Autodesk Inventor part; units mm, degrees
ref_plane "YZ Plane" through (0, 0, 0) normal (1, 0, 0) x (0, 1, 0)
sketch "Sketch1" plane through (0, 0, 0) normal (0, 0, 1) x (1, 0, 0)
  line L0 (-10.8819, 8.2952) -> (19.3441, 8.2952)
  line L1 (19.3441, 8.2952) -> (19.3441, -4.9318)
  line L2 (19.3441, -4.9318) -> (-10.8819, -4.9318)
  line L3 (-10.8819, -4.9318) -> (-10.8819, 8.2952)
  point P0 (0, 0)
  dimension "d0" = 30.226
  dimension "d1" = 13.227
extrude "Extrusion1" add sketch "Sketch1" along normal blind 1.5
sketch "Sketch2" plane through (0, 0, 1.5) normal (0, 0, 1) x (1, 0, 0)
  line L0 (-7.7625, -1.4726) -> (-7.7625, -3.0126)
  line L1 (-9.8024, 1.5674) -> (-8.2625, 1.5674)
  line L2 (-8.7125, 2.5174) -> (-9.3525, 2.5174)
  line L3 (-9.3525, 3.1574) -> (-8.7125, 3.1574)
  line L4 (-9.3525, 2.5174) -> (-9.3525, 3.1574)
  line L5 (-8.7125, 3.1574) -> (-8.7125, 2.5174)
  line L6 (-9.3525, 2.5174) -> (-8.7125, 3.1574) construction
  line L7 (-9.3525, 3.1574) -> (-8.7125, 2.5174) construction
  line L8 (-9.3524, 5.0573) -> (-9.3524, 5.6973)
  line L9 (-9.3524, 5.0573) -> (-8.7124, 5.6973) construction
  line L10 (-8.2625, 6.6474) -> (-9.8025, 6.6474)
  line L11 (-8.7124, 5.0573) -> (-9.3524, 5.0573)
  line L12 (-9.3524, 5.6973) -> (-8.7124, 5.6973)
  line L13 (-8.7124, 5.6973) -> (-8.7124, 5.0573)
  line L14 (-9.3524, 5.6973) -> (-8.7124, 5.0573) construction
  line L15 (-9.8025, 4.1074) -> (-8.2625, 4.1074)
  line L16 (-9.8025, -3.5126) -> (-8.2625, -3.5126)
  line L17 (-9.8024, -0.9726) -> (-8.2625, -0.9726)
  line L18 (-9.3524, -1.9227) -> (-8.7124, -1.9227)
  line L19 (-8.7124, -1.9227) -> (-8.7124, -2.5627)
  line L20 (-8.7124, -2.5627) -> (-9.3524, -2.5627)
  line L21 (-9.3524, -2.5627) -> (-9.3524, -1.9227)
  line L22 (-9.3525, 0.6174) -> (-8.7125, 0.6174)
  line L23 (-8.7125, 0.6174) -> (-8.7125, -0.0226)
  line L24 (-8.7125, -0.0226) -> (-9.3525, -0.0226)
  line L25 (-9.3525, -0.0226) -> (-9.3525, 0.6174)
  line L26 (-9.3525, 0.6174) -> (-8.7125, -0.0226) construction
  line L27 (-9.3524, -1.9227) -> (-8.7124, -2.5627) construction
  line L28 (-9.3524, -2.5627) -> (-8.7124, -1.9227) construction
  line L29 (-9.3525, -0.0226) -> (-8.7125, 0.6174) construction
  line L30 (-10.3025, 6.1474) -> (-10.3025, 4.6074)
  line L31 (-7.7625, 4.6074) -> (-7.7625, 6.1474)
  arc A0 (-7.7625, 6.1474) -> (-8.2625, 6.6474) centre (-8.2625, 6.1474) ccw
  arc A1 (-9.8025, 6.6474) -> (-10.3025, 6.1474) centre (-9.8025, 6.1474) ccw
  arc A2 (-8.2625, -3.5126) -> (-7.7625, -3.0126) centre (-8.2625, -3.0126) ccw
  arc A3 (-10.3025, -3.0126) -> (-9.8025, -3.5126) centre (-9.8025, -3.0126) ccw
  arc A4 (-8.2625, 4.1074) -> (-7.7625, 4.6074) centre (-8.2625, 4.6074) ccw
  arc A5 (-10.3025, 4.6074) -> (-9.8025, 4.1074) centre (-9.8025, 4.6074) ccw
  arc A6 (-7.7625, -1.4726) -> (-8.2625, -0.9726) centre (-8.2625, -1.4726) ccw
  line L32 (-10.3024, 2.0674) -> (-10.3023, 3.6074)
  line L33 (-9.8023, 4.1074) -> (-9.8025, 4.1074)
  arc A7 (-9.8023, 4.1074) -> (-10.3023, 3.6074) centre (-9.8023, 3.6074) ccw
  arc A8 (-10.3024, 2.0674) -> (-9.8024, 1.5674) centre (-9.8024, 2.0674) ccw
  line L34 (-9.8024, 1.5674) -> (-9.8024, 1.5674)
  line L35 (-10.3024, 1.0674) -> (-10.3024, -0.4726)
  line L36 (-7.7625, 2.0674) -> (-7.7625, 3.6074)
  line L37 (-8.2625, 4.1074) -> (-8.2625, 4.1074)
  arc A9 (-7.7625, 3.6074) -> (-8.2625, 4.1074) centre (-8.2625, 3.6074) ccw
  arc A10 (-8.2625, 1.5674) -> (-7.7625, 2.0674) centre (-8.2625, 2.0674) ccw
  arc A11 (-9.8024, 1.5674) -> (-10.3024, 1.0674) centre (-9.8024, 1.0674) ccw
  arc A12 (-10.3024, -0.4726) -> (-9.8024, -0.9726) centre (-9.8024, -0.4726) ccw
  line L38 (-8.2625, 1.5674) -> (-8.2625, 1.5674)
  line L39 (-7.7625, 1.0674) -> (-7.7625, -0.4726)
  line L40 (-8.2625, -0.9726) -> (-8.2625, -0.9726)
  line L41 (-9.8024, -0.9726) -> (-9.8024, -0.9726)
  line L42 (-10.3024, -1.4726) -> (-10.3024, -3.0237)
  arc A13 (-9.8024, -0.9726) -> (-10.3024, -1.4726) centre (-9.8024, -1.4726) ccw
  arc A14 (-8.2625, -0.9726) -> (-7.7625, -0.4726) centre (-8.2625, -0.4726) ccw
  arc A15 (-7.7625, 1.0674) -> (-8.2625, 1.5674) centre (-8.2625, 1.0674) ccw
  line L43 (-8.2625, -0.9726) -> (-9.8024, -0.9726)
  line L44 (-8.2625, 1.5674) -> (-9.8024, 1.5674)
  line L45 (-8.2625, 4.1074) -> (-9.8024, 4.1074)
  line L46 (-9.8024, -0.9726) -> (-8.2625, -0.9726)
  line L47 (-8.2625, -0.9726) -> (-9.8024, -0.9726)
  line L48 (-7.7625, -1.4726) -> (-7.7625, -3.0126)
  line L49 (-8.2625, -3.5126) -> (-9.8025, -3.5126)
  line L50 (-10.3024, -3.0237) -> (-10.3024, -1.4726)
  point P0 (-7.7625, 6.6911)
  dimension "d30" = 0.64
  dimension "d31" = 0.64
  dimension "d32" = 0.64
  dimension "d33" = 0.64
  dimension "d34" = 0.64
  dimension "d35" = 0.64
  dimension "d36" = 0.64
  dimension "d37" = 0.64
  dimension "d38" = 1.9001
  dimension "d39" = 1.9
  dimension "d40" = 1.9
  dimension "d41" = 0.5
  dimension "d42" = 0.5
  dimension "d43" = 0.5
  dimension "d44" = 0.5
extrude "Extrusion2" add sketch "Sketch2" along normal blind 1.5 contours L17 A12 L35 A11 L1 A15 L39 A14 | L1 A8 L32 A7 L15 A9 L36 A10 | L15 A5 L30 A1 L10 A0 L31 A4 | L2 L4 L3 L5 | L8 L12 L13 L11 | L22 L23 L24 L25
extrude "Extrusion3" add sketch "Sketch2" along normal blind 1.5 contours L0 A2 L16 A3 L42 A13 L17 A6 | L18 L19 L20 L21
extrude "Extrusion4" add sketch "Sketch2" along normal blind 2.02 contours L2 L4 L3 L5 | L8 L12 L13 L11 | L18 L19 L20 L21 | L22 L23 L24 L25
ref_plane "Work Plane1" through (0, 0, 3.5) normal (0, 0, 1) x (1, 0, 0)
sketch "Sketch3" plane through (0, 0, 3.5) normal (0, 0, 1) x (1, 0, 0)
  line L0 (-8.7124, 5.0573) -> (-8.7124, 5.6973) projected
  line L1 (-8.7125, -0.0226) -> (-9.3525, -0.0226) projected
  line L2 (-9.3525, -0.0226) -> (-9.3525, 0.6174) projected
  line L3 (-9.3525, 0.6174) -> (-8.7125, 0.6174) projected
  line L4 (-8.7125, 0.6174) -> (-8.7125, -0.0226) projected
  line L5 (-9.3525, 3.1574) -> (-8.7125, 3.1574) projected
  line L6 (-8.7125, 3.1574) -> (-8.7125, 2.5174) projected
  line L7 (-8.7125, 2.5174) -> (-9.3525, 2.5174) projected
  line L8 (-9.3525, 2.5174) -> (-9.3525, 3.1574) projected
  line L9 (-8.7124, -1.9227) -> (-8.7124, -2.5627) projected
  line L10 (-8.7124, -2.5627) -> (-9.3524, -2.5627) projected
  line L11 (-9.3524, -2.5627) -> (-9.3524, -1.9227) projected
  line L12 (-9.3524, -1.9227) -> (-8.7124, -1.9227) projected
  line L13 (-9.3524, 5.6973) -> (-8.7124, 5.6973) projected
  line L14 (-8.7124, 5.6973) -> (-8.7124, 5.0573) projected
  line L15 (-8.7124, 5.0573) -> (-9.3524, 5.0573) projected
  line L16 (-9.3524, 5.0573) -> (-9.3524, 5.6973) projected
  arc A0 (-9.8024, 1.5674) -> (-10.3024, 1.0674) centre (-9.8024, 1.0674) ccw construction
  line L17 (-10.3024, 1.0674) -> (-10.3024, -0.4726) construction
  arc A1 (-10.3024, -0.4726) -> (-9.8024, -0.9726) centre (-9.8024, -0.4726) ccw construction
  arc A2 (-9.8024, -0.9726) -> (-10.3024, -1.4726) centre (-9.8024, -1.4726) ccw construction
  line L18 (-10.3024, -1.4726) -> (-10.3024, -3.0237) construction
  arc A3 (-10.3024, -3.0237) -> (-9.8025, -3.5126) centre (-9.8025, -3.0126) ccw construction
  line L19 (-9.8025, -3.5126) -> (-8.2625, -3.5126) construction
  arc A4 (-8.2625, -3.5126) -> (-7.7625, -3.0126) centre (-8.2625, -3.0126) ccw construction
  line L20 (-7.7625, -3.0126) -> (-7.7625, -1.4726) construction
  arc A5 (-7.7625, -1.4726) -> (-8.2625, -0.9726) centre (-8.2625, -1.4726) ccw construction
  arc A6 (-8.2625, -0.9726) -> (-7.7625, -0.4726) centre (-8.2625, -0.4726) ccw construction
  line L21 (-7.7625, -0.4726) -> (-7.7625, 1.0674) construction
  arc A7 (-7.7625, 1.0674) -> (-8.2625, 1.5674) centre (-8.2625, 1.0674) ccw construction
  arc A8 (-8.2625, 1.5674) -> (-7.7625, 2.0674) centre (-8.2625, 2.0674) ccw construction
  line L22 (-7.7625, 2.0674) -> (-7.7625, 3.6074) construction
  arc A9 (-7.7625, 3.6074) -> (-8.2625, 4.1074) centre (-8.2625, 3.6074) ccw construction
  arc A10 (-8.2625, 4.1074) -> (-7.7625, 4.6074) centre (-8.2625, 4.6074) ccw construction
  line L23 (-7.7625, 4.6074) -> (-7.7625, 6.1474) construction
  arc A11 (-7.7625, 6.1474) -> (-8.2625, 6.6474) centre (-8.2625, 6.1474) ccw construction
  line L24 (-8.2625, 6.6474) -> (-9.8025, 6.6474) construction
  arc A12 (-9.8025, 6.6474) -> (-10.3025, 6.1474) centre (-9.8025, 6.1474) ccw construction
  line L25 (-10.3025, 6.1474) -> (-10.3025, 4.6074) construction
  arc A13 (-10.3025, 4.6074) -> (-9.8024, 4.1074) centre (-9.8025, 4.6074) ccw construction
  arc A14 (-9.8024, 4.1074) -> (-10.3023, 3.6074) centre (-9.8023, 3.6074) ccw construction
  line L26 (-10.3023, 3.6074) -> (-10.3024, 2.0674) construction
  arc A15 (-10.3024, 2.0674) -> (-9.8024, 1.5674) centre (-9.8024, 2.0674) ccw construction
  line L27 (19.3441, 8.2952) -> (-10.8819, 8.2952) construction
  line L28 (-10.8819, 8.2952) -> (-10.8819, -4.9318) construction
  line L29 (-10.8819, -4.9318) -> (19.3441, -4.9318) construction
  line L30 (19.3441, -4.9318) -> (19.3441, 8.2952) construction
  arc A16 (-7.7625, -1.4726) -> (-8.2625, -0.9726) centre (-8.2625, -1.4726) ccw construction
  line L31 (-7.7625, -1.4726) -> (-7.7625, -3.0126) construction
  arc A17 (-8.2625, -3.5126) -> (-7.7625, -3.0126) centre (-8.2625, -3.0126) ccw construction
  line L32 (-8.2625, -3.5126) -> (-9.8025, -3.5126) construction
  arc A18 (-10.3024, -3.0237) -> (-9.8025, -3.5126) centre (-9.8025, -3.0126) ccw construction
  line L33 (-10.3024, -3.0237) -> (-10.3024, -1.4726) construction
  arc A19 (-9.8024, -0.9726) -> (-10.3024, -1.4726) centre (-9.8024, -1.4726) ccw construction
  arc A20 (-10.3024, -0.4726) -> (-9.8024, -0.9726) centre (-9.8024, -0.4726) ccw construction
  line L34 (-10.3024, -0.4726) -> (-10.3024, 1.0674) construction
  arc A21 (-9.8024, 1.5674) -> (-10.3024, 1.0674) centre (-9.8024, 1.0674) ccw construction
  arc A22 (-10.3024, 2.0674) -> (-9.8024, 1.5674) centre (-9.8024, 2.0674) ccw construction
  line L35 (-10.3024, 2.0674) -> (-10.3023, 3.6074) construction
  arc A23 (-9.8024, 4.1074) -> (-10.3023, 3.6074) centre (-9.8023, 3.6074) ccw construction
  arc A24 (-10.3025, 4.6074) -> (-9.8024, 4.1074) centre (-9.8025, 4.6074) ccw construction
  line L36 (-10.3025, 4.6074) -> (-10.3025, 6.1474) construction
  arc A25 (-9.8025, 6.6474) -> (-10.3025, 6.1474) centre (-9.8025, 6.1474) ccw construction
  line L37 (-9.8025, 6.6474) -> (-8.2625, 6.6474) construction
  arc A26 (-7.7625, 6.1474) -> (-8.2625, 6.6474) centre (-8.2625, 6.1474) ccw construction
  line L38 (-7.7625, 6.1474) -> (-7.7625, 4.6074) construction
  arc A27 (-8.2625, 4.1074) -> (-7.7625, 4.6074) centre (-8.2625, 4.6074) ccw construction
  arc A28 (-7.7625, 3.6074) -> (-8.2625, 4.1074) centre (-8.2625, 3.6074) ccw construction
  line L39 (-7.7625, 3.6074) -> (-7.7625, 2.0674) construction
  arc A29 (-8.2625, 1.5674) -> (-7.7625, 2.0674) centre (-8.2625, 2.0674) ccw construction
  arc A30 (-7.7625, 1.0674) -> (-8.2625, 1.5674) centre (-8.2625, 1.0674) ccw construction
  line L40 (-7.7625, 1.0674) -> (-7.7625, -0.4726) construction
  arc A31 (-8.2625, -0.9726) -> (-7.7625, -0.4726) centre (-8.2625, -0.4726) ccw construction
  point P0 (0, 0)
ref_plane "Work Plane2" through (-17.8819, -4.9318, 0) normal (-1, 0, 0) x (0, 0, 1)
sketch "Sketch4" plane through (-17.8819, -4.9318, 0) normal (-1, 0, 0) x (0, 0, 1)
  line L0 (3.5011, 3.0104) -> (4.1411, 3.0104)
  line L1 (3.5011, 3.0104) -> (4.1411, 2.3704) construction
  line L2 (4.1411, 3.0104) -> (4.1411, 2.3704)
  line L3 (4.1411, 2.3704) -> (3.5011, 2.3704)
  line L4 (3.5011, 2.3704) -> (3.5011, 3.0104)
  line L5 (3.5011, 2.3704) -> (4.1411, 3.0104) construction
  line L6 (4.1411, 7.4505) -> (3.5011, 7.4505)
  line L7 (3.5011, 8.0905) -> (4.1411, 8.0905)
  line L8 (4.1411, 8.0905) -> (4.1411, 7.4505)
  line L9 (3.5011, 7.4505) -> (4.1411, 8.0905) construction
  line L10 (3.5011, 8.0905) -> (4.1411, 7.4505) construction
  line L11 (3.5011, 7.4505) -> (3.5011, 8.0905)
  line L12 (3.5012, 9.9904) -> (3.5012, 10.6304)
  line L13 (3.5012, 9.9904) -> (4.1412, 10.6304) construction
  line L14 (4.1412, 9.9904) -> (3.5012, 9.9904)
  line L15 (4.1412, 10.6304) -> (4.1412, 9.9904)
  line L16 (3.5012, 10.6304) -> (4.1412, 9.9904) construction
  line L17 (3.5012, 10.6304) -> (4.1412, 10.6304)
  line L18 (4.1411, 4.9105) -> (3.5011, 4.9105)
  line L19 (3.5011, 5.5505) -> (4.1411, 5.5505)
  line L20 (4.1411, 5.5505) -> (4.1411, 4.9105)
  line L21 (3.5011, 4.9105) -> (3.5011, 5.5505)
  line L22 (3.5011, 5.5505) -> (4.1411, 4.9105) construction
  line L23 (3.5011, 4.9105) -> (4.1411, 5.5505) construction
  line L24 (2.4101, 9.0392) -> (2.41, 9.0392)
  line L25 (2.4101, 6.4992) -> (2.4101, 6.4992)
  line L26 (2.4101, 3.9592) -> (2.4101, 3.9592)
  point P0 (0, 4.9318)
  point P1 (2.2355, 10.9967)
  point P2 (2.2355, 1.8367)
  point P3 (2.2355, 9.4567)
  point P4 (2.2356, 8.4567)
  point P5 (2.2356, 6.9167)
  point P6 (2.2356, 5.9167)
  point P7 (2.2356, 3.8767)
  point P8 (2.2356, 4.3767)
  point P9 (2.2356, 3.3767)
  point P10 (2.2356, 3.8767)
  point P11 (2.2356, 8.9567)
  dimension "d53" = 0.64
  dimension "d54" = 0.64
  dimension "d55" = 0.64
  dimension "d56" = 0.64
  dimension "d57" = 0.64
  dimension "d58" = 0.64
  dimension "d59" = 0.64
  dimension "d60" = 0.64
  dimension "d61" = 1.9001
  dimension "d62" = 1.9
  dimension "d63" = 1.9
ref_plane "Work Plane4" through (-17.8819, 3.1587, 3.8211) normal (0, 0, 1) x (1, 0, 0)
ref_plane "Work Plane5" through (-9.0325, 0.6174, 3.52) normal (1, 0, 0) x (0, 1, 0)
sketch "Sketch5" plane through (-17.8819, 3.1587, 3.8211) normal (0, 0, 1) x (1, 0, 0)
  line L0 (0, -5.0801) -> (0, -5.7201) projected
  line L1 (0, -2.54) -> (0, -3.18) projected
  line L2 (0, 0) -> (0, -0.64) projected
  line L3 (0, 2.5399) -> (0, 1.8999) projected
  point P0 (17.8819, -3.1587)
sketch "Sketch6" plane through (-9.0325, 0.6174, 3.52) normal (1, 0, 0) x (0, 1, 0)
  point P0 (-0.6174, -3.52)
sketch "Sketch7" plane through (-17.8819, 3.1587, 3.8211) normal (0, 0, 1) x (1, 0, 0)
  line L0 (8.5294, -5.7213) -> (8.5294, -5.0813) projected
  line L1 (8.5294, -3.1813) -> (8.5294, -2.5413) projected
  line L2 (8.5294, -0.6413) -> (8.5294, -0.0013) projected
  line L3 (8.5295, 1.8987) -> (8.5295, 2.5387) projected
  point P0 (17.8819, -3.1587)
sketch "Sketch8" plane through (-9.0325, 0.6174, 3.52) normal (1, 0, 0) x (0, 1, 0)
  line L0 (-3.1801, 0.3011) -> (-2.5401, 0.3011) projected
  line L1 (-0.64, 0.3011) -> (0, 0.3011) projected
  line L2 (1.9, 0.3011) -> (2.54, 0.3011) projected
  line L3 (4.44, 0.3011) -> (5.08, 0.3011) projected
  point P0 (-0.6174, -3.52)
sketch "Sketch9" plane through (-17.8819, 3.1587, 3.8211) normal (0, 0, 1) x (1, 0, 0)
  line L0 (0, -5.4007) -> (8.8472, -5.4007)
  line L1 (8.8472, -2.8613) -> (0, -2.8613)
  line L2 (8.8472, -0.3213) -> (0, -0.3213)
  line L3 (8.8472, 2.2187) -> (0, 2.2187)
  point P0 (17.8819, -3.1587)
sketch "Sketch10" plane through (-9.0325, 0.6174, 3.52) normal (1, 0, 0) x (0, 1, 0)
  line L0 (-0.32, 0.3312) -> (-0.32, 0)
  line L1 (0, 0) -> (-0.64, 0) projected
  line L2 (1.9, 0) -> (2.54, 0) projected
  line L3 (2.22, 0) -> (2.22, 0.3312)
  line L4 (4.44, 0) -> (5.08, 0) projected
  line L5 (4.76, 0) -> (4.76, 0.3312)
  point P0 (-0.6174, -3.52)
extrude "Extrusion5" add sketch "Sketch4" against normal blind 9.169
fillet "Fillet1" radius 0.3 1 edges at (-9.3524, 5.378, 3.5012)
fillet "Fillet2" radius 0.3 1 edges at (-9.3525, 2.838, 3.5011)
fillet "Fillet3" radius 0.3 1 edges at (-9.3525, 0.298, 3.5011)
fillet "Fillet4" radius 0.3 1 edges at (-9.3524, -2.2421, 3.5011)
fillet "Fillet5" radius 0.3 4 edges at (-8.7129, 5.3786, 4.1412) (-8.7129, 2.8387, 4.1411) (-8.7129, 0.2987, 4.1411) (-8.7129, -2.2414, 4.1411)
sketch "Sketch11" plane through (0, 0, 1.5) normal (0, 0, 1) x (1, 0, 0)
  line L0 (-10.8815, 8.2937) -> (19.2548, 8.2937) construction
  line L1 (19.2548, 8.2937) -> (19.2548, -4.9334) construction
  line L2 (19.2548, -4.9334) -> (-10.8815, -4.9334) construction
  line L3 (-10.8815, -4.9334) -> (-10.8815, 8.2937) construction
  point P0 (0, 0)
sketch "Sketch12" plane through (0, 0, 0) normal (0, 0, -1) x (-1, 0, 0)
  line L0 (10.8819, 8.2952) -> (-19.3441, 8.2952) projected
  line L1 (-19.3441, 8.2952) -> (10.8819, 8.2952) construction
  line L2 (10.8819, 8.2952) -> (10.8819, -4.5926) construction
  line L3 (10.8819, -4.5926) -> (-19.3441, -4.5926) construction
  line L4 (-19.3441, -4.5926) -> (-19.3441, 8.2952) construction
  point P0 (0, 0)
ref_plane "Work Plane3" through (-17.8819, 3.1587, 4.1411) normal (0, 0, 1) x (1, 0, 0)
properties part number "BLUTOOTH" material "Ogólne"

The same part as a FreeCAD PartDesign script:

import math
import FreeCAD as App
import Part
import Sketcher
Q = App.Units.Quantity


def edges_at(feature, points):
    """Names of the edges that pass closest to the given points."""
    edges = feature.Shape.Edges
    near = lambda p: min(range(len(edges)), key=lambda i: edges[i].distToShape(Part.Vertex(*p))[0])
    return sorted({f"Edge{near(p) + 1}" for p in points})


def add_polygon(sketch, points):
    """Adds a closed chain of lines whose ends are joined by coincident constraints."""
    first, n = sketch.GeometryCount, len(points)
    for a, b in zip(points, points[1:] + points[:1]):
        sketch.addGeometry(Part.LineSegment(App.Vector(*a, 0), App.Vector(*b, 0)), False)
    for i in range(n):
        sketch.addConstraint(Sketcher.Constraint("Coincident", first + i, 2, first + (i + 1) % n, 1))

doc = App.newDocument("Part")
body = doc.addObject("PartDesign::Body", "Body")

sketch1 = body.newObject("Sketcher::SketchObject", "Sketch")
sketch1.AttachmentSupport = (doc.getObject("XY_Plane"), [""])
sketch1.MapMode = "FlatFace"
add_polygon(sketch1, [(19, 8), (-11, 8), (-11, -5), (19, -5)])
sketch1.addConstraint(Sketcher.Constraint("Horizontal", 0))
sketch1.addConstraint(Sketcher.Constraint("Vertical", 1))
sketch1.addConstraint(Sketcher.Constraint("Horizontal", 2))
sketch1.addConstraint(Sketcher.Constraint("Vertical", 3))
sketch1.addConstraint(Sketcher.Constraint("DistanceX", 0, 2, 0, 1, Q("30.226 mm")))
sketch1.addConstraint(Sketcher.Constraint("DistanceY", 1, 2, 1, 1, Q("13.227 mm")))
sketch1.addConstraint(Sketcher.Constraint("DistanceX", 0, 2, -1, 1, Q("10.882 mm")))
sketch1.addConstraint(Sketcher.Constraint("DistanceY", -1, 1, 0, 2, Q("8.2952 mm")))
pad1 = body.newObject("PartDesign::Pad", "Pad")
pad1.Profile = sketch1
pad1.Length = 1.5

sketch2 = body.newObject("Sketcher::SketchObject", "Sketch001")
sketch2.AttachmentSupport = (doc.getObject("XY_Plane"), [""])
sketch2.MapMode = "FlatFace"
sketch2.AttachmentOffset = App.Placement(App.Vector(0, 0, 1.5), App.Rotation())
sketch2.addGeometry(Part.LineSegment(App.Vector(-9.8, -0.97, 0), App.Vector(-8.26, -0.97, 0)), False)
sketch2.addGeometry(Part.ArcOfCircle(Part.Circle(App.Vector(-8.26, -0.47, 0), App.Vector(0, 0, 1), 0.5), math.radians(-90), math.radians(0)), False)
sketch2.addGeometry(Part.LineSegment(App.Vector(-7.76, -0.47, 0), App.Vector(-7.76, 1.07, 0)), False)
sketch2.addGeometry(Part.ArcOfCircle(Part.Circle(App.Vector(-8.26, 1.07, 0), App.Vector(0, 0, 1), 0.5), math.radians(0), math.radians(90)), False)
sketch2.addGeometry(Part.ArcOfCircle(Part.Circle(App.Vector(-8.26, 2.07, 0), App.Vector(0, 0, 1), 0.5), math.radians(-90), math.radians(0)), False)
sketch2.addGeometry(Part.LineSegment(App.Vector(-7.76, 2.07, 0), App.Vector(-7.76, 3.61, 0)), False)
sketch2.addGeometry(Part.ArcOfCircle(Part.Circle(App.Vector(-8.26, 3.61, 0), App.Vector(0, 0, 1), 0.5), math.radians(0), math.radians(90)), False)
sketch2.addGeometry(Part.ArcOfCircle(Part.Circle(App.Vector(-8.26, 4.61, 0), App.Vector(0, 0, 1), 0.5), math.radians(-90), math.radians(0)), False)
sketch2.addGeometry(Part.LineSegment(App.Vector(-7.76, 4.61, 0), App.Vector(-7.76, 6.15, 0)), False)
sketch2.addGeometry(Part.ArcOfCircle(Part.Circle(App.Vector(-8.26, 6.15, 0), App.Vector(0, 0, 1), 0.5), math.radians(0), math.radians(90)), False)
sketch2.addGeometry(Part.LineSegment(App.Vector(-8.26, 6.65, 0), App.Vector(-9.8, 6.65, 0)), False)
sketch2.addGeometry(Part.ArcOfCircle(Part.Circle(App.Vector(-9.8, 6.15, 0), App.Vector(0, 0, 1), 0.5), math.radians(90), math.radians(180)), False)
sketch2.addGeometry(Part.LineSegment(App.Vector(-10.3, 6.15, 0), App.Vector(-10.3, 4.61, 0)), False)
sketch2.addGeometry(Part.ArcOfCircle(Part.Circle(App.Vector(-9.8, 4.61, 0), App.Vector(0, 0, 1), 0.5), math.radians(180), math.radians(270)), False)
sketch2.addGeometry(Part.ArcOfCircle(Part.Circle(App.Vector(-9.8, 3.61, 0), App.Vector(0, 0, 1), 0.5), math.radians(90), math.radians(180)), False)
sketch2.addGeometry(Part.LineSegment(App.Vector(-10.3, 3.61, 0), App.Vector(-10.3, 2.07, 0)), False)
sketch2.addGeometry(Part.ArcOfCircle(Part.Circle(App.Vector(-9.8, 2.07, 0), App.Vector(0, 0, 1), 0.5), math.radians(180), math.radians(270)), False)
sketch2.addGeometry(Part.ArcOfCircle(Part.Circle(App.Vector(-9.8, 1.07, 0), App.Vector(0, 0, 1), 0.5), math.radians(90), math.radians(180)), False)
sketch2.addGeometry(Part.LineSegment(App.Vector(-10.3, 1.07, 0), App.Vector(-10.3, -0.47, 0)), False)
sketch2.addGeometry(Part.ArcOfCircle(Part.Circle(App.Vector(-9.8, -0.47, 0), App.Vector(0, 0, 1), 0.5), math.radians(180), math.radians(270)), False)
sketch2.addConstraint(Sketcher.Constraint("Tangent", 0, 2, 1, 1))
sketch2.addConstraint(Sketcher.Constraint("Tangent", 1, 2, 2, 1))
sketch2.addConstraint(Sketcher.Constraint("Tangent", 2, 2, 3, 1))
sketch2.addConstraint(Sketcher.Constraint("Tangent", 3, 2, 4, 1))
sketch2.addConstraint(Sketcher.Constraint("Tangent", 4, 2, 5, 1))
sketch2.addConstraint(Sketcher.Constraint("Tangent", 5, 2, 6, 1))
sketch2.addConstraint(Sketcher.Constraint("Tangent", 6, 2, 7, 1))
sketch2.addConstraint(Sketcher.Constraint("Tangent", 7, 2, 8, 1))
sketch2.addConstraint(Sketcher.Constraint("Tangent", 8, 2, 9, 1))
sketch2.addConstraint(Sketcher.Constraint("Tangent", 9, 2, 10, 1))
sketch2.addConstraint(Sketcher.Constraint("Tangent", 10, 2, 11, 1))
sketch2.addConstraint(Sketcher.Constraint("Tangent", 11, 2, 12, 1))
sketch2.addConstraint(Sketcher.Constraint("Tangent", 12, 2, 13, 1))
sketch2.addConstraint(Sketcher.Constraint("Tangent", 13, 2, 14, 1))
sketch2.addConstraint(Sketcher.Constraint("Tangent", 14, 2, 15, 1))
sketch2.addConstraint(Sketcher.Constraint("Tangent", 15, 2, 16, 1))
sketch2.addConstraint(Sketcher.Constraint("Tangent", 16, 2, 17, 1))
sketch2.addConstraint(Sketcher.Constraint("Tangent", 17, 2, 18, 1))
sketch2.addConstraint(Sketcher.Constraint("Tangent", 18, 2, 19, 1))
sketch2.addConstraint(Sketcher.Constraint("Tangent", 19, 2, 0, 1))
sketch2.addConstraint(Sketcher.Constraint("Horizontal", 0))
sketch2.addConstraint(Sketcher.Constraint("Vertical", 2))
sketch2.addConstraint(Sketcher.Constraint("Vertical", 5))
sketch2.addConstraint(Sketcher.Constraint("Vertical", 8))
sketch2.addConstraint(Sketcher.Constraint("Horizontal", 10))
sketch2.addConstraint(Sketcher.Constraint("Vertical", 12))
sketch2.addConstraint(Sketcher.Constraint("Vertical", 15))
sketch2.addConstraint(Sketcher.Constraint("Vertical", 18))
sketch2.addConstraint(Sketcher.Constraint("Equal", 1, 3))
sketch2.addConstraint(Sketcher.Constraint("Equal", 3, 4))
sketch2.addConstraint(Sketcher.Constraint("Equal", 4, 6))
sketch2.addConstraint(Sketcher.Constraint("Equal", 6, 7))
sketch2.addConstraint(Sketcher.Constraint("Equal", 7, 9))
sketch2.addConstraint(Sketcher.Constraint("Equal", 9, 11))
sketch2.addConstraint(Sketcher.Constraint("Equal", 11, 13))
sketch2.addConstraint(Sketcher.Constraint("Equal", 13, 14))
sketch2.addConstraint(Sketcher.Constraint("Equal", 14, 16))
sketch2.addConstraint(Sketcher.Constraint("Equal", 16, 17))
sketch2.addConstraint(Sketcher.Constraint("Equal", 17, 19))
sketch2.addConstraint(Sketcher.Constraint("Horizontal", 7, 3, 13, 3))
sketch2.addConstraint(Sketcher.Constraint("Horizontal", 4, 3, 16, 3))
sketch2.addConstraint(Sketcher.Constraint("Vertical", 3, 3, 4, 3))
sketch2.addConstraint(Sketcher.Constraint("Vertical", 6, 3, 7, 3))
sketch2.addConstraint(Sketcher.Constraint("Vertical", 13, 3, 14, 3))
sketch2.addConstraint(Sketcher.Constraint("Vertical", 16, 3, 17, 3))
sketch2.addConstraint(Sketcher.Constraint("Equal", 10, 2))
sketch2.addConstraint(Sketcher.Constraint("Equal", 2, 5))
sketch2.addConstraint(Sketcher.Constraint("Equal", 5, 8))
sketch2.addConstraint(Sketcher.Constraint("Radius", 1, Q("0.5 mm")))
sketch2.addConstraint(Sketcher.Constraint("DistanceX", 0, 1, 0, 2, Q("1.54 mm")))
sketch2.addConstraint(Sketcher.Constraint("DistanceX", 1, 3, -1, 1, Q("8.2625 mm")))
sketch2.addConstraint(Sketcher.Constraint("DistanceY", 1, 3, -1, 1, Q("0.4726 mm")))
pad2 = body.newObject("PartDesign::Pad", "Pad001")
pad2.Profile = sketch2
pad2.Length = 1.5

sketch3 = body.newObject("Sketcher::SketchObject", "Sketch002")
sketch3.AttachmentSupport = (doc.getObject("XY_Plane"), [""])
sketch3.MapMode = "FlatFace"
sketch3.AttachmentOffset = App.Placement(App.Vector(0, 0, 1.5), App.Rotation())
sketch3.addGeometry(Part.LineSegment(App.Vector(-7.76, -3.01, 0), App.Vector(-7.76, -1.47, 0)), False)
sketch3.addGeometry(Part.ArcOfCircle(Part.Circle(App.Vector(-8.26, -1.47, 0), App.Vector(0, 0, 1), 0.5), math.radians(0), math.radians(90)), False)
sketch3.addGeometry(Part.LineSegment(App.Vector(-8.26, -0.97, 0), App.Vector(-9.8, -0.97, 0)), False)
sketch3.addGeometry(Part.ArcOfCircle(Part.Circle(App.Vector(-9.8, -1.47, 0), App.Vector(0, 0, 1), 0.5), math.radians(90), math.radians(180)), False)
sketch3.addGeometry(Part.LineSegment(App.Vector(-10.3, -1.47, 0), App.Vector(-10.3, -3.01, 0)), False)
sketch3.addGeometry(Part.ArcOfCircle(Part.Circle(App.Vector(-9.8, -3.01, 0), App.Vector(0, 0, 1), 0.5), math.radians(180), math.radians(270)), False)
sketch3.addGeometry(Part.LineSegment(App.Vector(-9.8, -3.51, 0), App.Vector(-8.26, -3.51, 0)), False)
sketch3.addGeometry(Part.ArcOfCircle(Part.Circle(App.Vector(-8.26, -3.01, 0), App.Vector(0, 0, 1), 0.5), math.radians(-90), math.radians(0)), False)
sketch3.addConstraint(Sketcher.Constraint("Tangent", 0, 2, 1, 1))
sketch3.addConstraint(Sketcher.Constraint("Tangent", 1, 2, 2, 1))
sketch3.addConstraint(Sketcher.Constraint("Tangent", 2, 2, 3, 1))
sketch3.addConstraint(Sketcher.Constraint("Tangent", 3, 2, 4, 1))
sketch3.addConstraint(Sketcher.Constraint("Tangent", 4, 2, 5, 1))
sketch3.addConstraint(Sketcher.Constraint("Tangent", 5, 2, 6, 1))
sketch3.addConstraint(Sketcher.Constraint("Tangent", 6, 2, 7, 1))
sketch3.addConstraint(Sketcher.Constraint("Tangent", 7, 2, 0, 1))
sketch3.addConstraint(Sketcher.Constraint("Vertical", 0))
sketch3.addConstraint(Sketcher.Constraint("Horizontal", 2))
sketch3.addConstraint(Sketcher.Constraint("Vertical", 4))
sketch3.addConstraint(Sketcher.Constraint("Horizontal", 6))
sketch3.addConstraint(Sketcher.Constraint("Equal", 1, 3))
sketch3.addConstraint(Sketcher.Constraint("Equal", 3, 5))
sketch3.addConstraint(Sketcher.Constraint("Equal", 5, 7))
sketch3.addConstraint(Sketcher.Constraint("Equal", 6, 0))
sketch3.addConstraint(Sketcher.Constraint("Radius", 1, Q("0.5 mm")))
sketch3.addConstraint(Sketcher.Constraint("DistanceX", 2, 2, 2, 1, Q("1.54 mm")))
sketch3.addConstraint(Sketcher.Constraint("DistanceX", 1, 3, -1, 1, Q("8.2625 mm")))
sketch3.addConstraint(Sketcher.Constraint("DistanceY", 1, 3, -1, 1, Q("1.4726 mm")))
pad3 = body.newObject("PartDesign::Pad", "Pad002")
pad3.Profile = sketch3
pad3.Length = 1.5

sketch4 = body.newObject("Sketcher::SketchObject", "Sketch003")
sketch4.AttachmentSupport = (doc.getObject("XY_Plane"), [""])
sketch4.MapMode = "FlatFace"
sketch4.AttachmentOffset = App.Placement(App.Vector(0, 0, 1.5), App.Rotation())
add_polygon(sketch4, [(-9.4, 2.5), (-8.7, 2.5), (-8.7, 3.2), (-9.4, 3.2)])
add_polygon(sketch4, [(-9.4, 5.7), (-9.4, 5.1), (-8.7, 5.1), (-8.7, 5.7)])
add_polygon(sketch4, [(-8.7, -1.9), (-9.4, -1.9), (-9.4, -2.6), (-8.7, -2.6)])
add_polygon(sketch4, [(-8.7, 0.6), (-9.4, 0.6), (-9.4, 0), (-8.7, 0)])
sketch4.addConstraint(Sketcher.Constraint("Horizontal", 0))
sketch4.addConstraint(Sketcher.Constraint("Vertical", 1))
sketch4.addConstraint(Sketcher.Constraint("Horizontal", 2))
sketch4.addConstraint(Sketcher.Constraint("Vertical", 3))
sketch4.addConstraint(Sketcher.Constraint("Vertical", 4))
sketch4.addConstraint(Sketcher.Constraint("Horizontal", 5))
sketch4.addConstraint(Sketcher.Constraint("Vertical", 6))
sketch4.addConstraint(Sketcher.Constraint("Horizontal", 7))
sketch4.addConstraint(Sketcher.Constraint("Horizontal", 8))
sketch4.addConstraint(Sketcher.Constraint("Vertical", 9))
sketch4.addConstraint(Sketcher.Constraint("Horizontal", 10))
sketch4.addConstraint(Sketcher.Constraint("Vertical", 11))
sketch4.addConstraint(Sketcher.Constraint("Horizontal", 12))
sketch4.addConstraint(Sketcher.Constraint("Vertical", 13))
sketch4.addConstraint(Sketcher.Constraint("Horizontal", 14))
sketch4.addConstraint(Sketcher.Constraint("Vertical", 15))
sketch4.addConstraint(Sketcher.Constraint("Vertical", 3, 2, 4, 2))
sketch4.addConstraint(Sketcher.Constraint("Vertical", 1, 2, 5, 2))
sketch4.addConstraint(Sketcher.Constraint("Vertical", 7, 2, 8, 2))
sketch4.addConstraint(Sketcher.Constraint("Vertical", 6, 2, 10, 2))
sketch4.addConstraint(Sketcher.Constraint("Vertical", 9, 2, 12, 2))
sketch4.addConstraint(Sketcher.Constraint("Vertical", 11, 2, 14, 2))
sketch4.addConstraint(Sketcher.Constraint("Equal", 14, 1))
sketch4.addConstraint(Sketcher.Constraint("Equal", 3, 4))
sketch4.addConstraint(Sketcher.Constraint("Equal", 6, 9))
sketch4.addConstraint(Sketcher.Constraint("Equal", 11, 13))
sketch4.addConstraint(Sketcher.Constraint("DistanceX", 0, 1, 0, 2, Q("0.64 mm")))
sketch4.addConstraint(Sketcher.Constraint("DistanceY", 2, 2, 4, 2, Q("1.9 mm")))
sketch4.addConstraint(Sketcher.Constraint("DistanceY", 12, 2, 3, 2, Q("1.9 mm")))
sketch4.addConstraint(Sketcher.Constraint("DistanceY", 8, 2, 13, 2, Q("1.9 mm")))
sketch4.addConstraint(Sketcher.Constraint("DistanceX", 0, 2, -1, 1, Q("8.7125 mm")))
sketch4.addConstraint(Sketcher.Constraint("DistanceY", -1, 1, 0, 2, Q("2.5174 mm")))
pad4 = body.newObject("PartDesign::Pad", "Pad003")
pad4.Profile = sketch4
pad4.Length = 2.02

sketch5 = body.newObject("Sketcher::SketchObject", "Sketch004")
sketch5.AttachmentSupport = (doc.getObject("YZ_Plane"), [""])
sketch5.MapMode = "FlatFace"
sketch5.AttachmentOffset = App.Placement(App.Vector(0, 0, -17.8819), App.Rotation())
add_polygon(sketch5, [(-1.9, 4.1), (-1.9, 3.5), (-2.6, 3.5), (-2.6, 4.1)])
add_polygon(sketch5, [(2.5, 3.5), (2.5, 4.1), (3.2, 4.1), (3.2, 3.5)])
add_polygon(sketch5, [(5.7, 3.5), (5.1, 3.5), (5.1, 4.1), (5.7, 4.1)])
add_polygon(sketch5, [(0, 3.5), (0, 4.1), (0.6, 4.1), (0.6, 3.5)])
sketch5.addConstraint(Sketcher.Constraint("Vertical", 0))
sketch5.addConstraint(Sketcher.Constraint("Horizontal", 1))
sketch5.addConstraint(Sketcher.Constraint("Vertical", 2))
sketch5.addConstraint(Sketcher.Constraint("Horizontal", 3))
sketch5.addConstraint(Sketcher.Constraint("Vertical", 4))
sketch5.addConstraint(Sketcher.Constraint("Horizontal", 5))
sketch5.addConstraint(Sketcher.Constraint("Vertical", 6))
sketch5.addConstraint(Sketcher.Constraint("Horizontal", 7))
sketch5.addConstraint(Sketcher.Constraint("Horizontal", 8))
sketch5.addConstraint(Sketcher.Constraint("Vertical", 9))
sketch5.addConstraint(Sketcher.Constraint("Horizontal", 10))
sketch5.addConstraint(Sketcher.Constraint("Vertical", 11))
sketch5.addConstraint(Sketcher.Constraint("Vertical", 12))
sketch5.addConstraint(Sketcher.Constraint("Horizontal", 13))
sketch5.addConstraint(Sketcher.Constraint("Vertical", 14))
sketch5.addConstraint(Sketcher.Constraint("Horizontal", 15))
sketch5.addConstraint(Sketcher.Constraint("Horizontal", 3, 2, 4, 2))
sketch5.addConstraint(Sketcher.Constraint("Horizontal", 1, 2, 6, 2))
sketch5.addConstraint(Sketcher.Constraint("Horizontal", 7, 2, 8, 2))
sketch5.addConstraint(Sketcher.Constraint("Horizontal", 5, 2, 9, 2))
sketch5.addConstraint(Sketcher.Constraint("Horizontal", 10, 2, 12, 2))
sketch5.addConstraint(Sketcher.Constraint("Horizontal", 11, 2, 14, 2))
sketch5.addConstraint(Sketcher.Constraint("Equal", 3, 5))
sketch5.addConstraint(Sketcher.Constraint("Equal", 7, 8))
sketch5.addConstraint(Sketcher.Constraint("Equal", 10, 13))
sketch5.addConstraint(Sketcher.Constraint("Equal", 15, 0))
sketch5.addConstraint(Sketcher.Constraint("DistanceX", 1, 2, 1, 1, Q("0.64 mm")))
sketch5.addConstraint(Sketcher.Constraint("DistanceX", 6, 2, 8, 2, Q("1.9 mm")))
sketch5.addConstraint(Sketcher.Constraint("DistanceX", 3, 2, 12, 2, Q("1.9 mm")))
sketch5.addConstraint(Sketcher.Constraint("DistanceX", 13, 2, 4, 2, Q("1.9 mm")))
sketch5.addConstraint(Sketcher.Constraint("DistanceY", -1, 1, 0, 2, Q("3.501 mm")))
sketch5.addConstraint(Sketcher.Constraint("DistanceX", 0, 2, -1, 1, Q("1.9214 mm")))
pad5 = body.newObject("PartDesign::Pad", "Pad004")
pad5.Profile = sketch5
pad5.Length = 9.169
doc.recompute()

fillet = body.newObject("PartDesign::Fillet", "Fillet")
fillet.Base = (pad5, edges_at(pad5, [(-9.352, 5.378, 3.501)]))
fillet.Radius = 0.3
doc.recompute()

fillet2 = body.newObject("PartDesign::Fillet", "Fillet001")
fillet2.Base = (fillet, edges_at(fillet, [(-9.352, 2.838, 3.501)]))
fillet2.Radius = 0.3
doc.recompute()

fillet3 = body.newObject("PartDesign::Fillet", "Fillet002")
fillet3.Base = (fillet2, edges_at(fillet2, [(-9.352, 0.298, 3.501)]))
fillet3.Radius = 0.3
doc.recompute()

fillet4 = body.newObject("PartDesign::Fillet", "Fillet003")
fillet4.Base = (fillet3, edges_at(fillet3, [(-9.352, -2.242, 3.501)]))
fillet4.Radius = 0.3
doc.recompute()

fillet5 = body.newObject("PartDesign::Fillet", "Fillet004")
fillet5.Base = (fillet4, edges_at(fillet4, [
    (-8.713, 5.379, 4.141),
    (-8.713, 2.839, 4.141),
    (-8.713, 0.299, 4.141),
    (-8.713, -2.241, 4.141),
]))
fillet5.Radius = 0.3

doc.recompute()
